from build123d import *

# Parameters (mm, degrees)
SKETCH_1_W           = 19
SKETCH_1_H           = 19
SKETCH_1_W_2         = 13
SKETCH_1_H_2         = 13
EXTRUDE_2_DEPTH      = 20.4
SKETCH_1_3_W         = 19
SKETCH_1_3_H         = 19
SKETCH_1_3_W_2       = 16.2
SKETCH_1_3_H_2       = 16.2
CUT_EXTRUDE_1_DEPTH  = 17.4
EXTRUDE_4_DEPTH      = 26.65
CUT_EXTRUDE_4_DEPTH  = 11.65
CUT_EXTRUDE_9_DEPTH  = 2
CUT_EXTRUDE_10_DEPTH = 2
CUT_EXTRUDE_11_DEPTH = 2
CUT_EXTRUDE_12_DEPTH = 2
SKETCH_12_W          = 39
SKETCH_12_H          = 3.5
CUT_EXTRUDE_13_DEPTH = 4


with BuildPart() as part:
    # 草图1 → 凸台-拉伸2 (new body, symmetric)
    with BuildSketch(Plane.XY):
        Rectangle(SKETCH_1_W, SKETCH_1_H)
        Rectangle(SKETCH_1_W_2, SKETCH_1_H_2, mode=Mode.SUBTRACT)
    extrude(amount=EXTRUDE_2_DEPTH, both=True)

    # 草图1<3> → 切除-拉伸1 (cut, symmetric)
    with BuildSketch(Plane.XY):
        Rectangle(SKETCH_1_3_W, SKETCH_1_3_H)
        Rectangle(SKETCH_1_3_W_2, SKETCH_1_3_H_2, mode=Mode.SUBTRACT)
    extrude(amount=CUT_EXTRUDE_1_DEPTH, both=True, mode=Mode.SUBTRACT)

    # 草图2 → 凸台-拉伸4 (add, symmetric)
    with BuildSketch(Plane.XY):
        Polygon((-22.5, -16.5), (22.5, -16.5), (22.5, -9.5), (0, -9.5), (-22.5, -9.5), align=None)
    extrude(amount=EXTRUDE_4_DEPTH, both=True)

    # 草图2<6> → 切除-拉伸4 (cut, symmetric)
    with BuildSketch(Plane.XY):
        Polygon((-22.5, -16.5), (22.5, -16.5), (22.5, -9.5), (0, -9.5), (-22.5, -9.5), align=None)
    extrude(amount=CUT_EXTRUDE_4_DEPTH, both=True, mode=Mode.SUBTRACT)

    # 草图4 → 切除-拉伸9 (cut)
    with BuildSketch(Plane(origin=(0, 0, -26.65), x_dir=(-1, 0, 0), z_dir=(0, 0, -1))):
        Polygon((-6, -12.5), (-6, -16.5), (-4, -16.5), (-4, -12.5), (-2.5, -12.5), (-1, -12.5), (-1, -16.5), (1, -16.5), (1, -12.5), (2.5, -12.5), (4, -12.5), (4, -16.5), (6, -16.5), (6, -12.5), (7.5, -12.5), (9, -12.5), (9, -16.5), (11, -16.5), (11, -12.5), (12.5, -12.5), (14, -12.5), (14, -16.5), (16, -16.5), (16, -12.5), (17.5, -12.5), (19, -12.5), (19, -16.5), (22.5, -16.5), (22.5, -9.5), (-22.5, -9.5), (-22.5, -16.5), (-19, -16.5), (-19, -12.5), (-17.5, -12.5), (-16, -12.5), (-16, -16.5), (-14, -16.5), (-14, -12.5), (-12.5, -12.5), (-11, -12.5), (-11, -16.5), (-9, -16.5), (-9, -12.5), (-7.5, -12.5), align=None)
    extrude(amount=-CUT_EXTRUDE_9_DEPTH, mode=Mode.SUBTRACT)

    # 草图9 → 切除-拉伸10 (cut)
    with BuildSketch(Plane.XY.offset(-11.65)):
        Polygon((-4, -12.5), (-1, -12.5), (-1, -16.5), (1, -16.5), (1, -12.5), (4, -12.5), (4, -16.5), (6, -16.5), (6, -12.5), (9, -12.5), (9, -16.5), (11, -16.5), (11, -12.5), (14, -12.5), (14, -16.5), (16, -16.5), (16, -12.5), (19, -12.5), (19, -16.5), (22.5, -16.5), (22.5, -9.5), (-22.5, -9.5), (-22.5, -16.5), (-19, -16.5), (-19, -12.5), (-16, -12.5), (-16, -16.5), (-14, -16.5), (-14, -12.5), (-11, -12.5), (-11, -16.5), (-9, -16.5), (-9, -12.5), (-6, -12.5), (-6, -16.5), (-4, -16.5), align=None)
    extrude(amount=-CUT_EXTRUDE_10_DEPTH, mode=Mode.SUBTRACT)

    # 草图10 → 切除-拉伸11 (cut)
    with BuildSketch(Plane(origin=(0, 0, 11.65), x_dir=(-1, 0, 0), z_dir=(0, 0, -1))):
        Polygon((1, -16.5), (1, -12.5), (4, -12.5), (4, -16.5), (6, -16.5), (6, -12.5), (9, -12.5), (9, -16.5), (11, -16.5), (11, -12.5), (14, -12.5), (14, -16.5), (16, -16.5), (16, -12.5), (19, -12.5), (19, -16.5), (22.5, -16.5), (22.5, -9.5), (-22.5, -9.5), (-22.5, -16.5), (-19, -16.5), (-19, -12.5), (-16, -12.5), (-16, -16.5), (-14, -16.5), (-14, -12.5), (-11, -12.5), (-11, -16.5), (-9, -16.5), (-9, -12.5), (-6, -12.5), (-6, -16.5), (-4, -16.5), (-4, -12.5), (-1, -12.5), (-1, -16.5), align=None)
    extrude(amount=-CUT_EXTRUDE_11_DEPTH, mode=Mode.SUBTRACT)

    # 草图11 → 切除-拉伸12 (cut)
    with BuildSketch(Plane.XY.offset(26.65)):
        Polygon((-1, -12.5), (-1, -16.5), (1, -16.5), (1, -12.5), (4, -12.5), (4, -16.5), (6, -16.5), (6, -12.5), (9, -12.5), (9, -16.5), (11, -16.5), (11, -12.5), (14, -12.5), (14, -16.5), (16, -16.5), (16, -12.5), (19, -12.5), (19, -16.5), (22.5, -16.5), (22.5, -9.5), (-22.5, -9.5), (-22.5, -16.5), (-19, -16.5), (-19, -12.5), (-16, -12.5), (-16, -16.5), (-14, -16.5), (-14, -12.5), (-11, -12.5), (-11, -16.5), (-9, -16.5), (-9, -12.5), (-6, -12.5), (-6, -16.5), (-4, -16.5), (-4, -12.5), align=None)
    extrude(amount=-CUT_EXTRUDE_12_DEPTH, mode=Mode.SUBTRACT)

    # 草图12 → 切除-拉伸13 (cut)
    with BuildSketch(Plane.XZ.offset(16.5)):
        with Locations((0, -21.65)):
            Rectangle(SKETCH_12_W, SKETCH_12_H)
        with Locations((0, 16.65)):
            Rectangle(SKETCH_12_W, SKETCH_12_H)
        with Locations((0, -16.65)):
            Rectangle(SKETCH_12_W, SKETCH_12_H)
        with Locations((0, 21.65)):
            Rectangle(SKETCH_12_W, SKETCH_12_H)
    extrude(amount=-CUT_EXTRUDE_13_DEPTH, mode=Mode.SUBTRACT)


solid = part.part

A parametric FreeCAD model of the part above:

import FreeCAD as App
import Part
import Sketcher
Q = App.Units.Quantity

doc = App.newDocument("Part")
params = doc.addObject("Spreadsheet::Sheet", "Params")
for row, (alias, value) in enumerate([
    ("sketch1_width", "19 mm"),
    ("sketch1_width2", "13 mm"),
    ("pad1_length", "40.8 mm"),
    ("sketch2_width", "19 mm"),
    ("sketch2_width2", "16.2 mm"),
    ("pocket1_length", "34.8 mm"),
    ("sketch3_width", "45 mm"),
    ("sketch3_height", "7 mm"),
    ("pad2_length", "53.3 mm"),
    ("sketch4_width", "45 mm"),
    ("sketch4_height", "7 mm"),
    ("pocket2_length", "23.3 mm"),
    ("sketch5_width", "2 mm"),
    ("sketch5_width2", "3 mm"),
    ("sketch5_width3", "45 mm"),
    ("sketch5_height", "4 mm"),
    ("sketch5_height2", "7 mm"),
    ("pocket3_length", "2 mm"),
    ("sketch6_width", "3 mm"),
    ("sketch6_width2", "2 mm"),
    ("sketch6_width3", "45 mm"),
    ("sketch6_height", "4 mm"),
    ("sketch6_height2", "7 mm"),
    ("pocket4_length", "2 mm"),
    ("sketch7_width", "3 mm"),
    ("sketch7_width2", "2 mm"),
    ("sketch7_width3", "45 mm"),
    ("sketch7_height", "4 mm"),
    ("sketch7_height2", "7 mm"),
    ("pocket5_length", "2 mm"),
    ("sketch8_width", "2 mm"),
    ("sketch8_width2", "3 mm"),
    ("sketch8_width3", "45 mm"),
    ("sketch8_height", "4 mm"),
    ("sketch8_height2", "7 mm"),
    ("pocket6_length", "2 mm"),
    ("sketch9_width", "39 mm"),
    ("sketch9_height", "3.5 mm"),
    ("pocket7_length", "4 mm"),
], start=1):
    params.set(f"A{row}", alias)
    params.set(f"B{row}", "=" + value)
    params.setAlias(f"B{row}", alias)

body = doc.addObject("PartDesign::Body", "Body")

# Sketch on XY plane
sketch1 = body.newObject("Sketcher::SketchObject", "Sketch")
sketch1.AttachmentSupport = (doc.getObject("XY_Plane"), [""])
sketch1.MapMode = "FlatFace"
sketch1.addGeometry([
    Part.LineSegment(App.Vector(-9.5, 9.5, 0), App.Vector(-9.5, -9.5, 0)),  # 0
    Part.LineSegment(App.Vector(-9.5, -9.5, 0), App.Vector(9.5, -9.5, 0)),  # 1
    Part.LineSegment(App.Vector(9.5, -9.5, 0), App.Vector(9.5, 9.5, 0)),  # 2
    Part.LineSegment(App.Vector(9.5, 9.5, 0), App.Vector(-9.5, 9.5, 0)),  # 3
    Part.LineSegment(App.Vector(6.5, -6.5, 0), App.Vector(-6.5, -6.5, 0)),  # 4
    Part.LineSegment(App.Vector(-6.5, -6.5, 0), App.Vector(-6.5, 6.5, 0)),  # 5
    Part.LineSegment(App.Vector(-6.5, 6.5, 0), App.Vector(6.5, 6.5, 0)),  # 6
    Part.LineSegment(App.Vector(6.5, 6.5, 0), App.Vector(6.5, -6.5, 0)),  # 7
], False)
sketch1.addConstraint([
    Sketcher.Constraint("Coincident", 0, 2, 1, 1),
    Sketcher.Constraint("Coincident", 1, 2, 2, 1),
    Sketcher.Constraint("Coincident", 2, 2, 3, 1),
    Sketcher.Constraint("Coincident", 3, 2, 0, 1),
    Sketcher.Constraint("Coincident", 4, 2, 5, 1),
    Sketcher.Constraint("Coincident", 5, 2, 6, 1),
    Sketcher.Constraint("Coincident", 6, 2, 7, 1),
    Sketcher.Constraint("Coincident", 7, 2, 4, 1),
    Sketcher.Constraint("Vertical", 0),
    Sketcher.Constraint("Horizontal", 1),
    Sketcher.Constraint("Vertical", 2),
    Sketcher.Constraint("Horizontal", 3),
    Sketcher.Constraint("Horizontal", 4),
    Sketcher.Constraint("Vertical", 5),
    Sketcher.Constraint("Horizontal", 6),
    Sketcher.Constraint("Vertical", 7),
    Sketcher.Constraint("Symmetric", 0, 2, 2, 2, -1, 1),
    Sketcher.Constraint("Symmetric", 4, 2, 6, 2, -1, 1),
    Sketcher.Constraint("Equal", 3, 0),
    Sketcher.Constraint("Equal", 6, 5),
    Sketcher.Constraint("DistanceX", 1, 1, 1, 2, Q("19 mm")),
    Sketcher.Constraint("DistanceX", 4, 2, 4, 1, Q("13 mm")),
])
sketch1.setExpression("Constraints[20]", "Params.sketch1_width")
sketch1.setExpression("Constraints[21]", "Params.sketch1_width2")
pad1 = body.newObject("PartDesign::Pad", "Pad")
pad1.Profile = sketch1
pad1.setExpression("Length", "Params.pad1_length")
pad1.Midplane = True

# Sketch on XY plane
sketch2 = body.newObject("Sketcher::SketchObject", "Sketch001")
sketch2.AttachmentSupport = (doc.getObject("XY_Plane"), [""])
sketch2.MapMode = "FlatFace"
sketch2.addGeometry([
    Part.LineSegment(App.Vector(-9.5, 9.5, 0), App.Vector(-9.5, -9.5, 0)),  # 0
    Part.LineSegment(App.Vector(-9.5, -9.5, 0), App.Vector(9.5, -9.5, 0)),  # 1
    Part.LineSegment(App.Vector(9.5, -9.5, 0), App.Vector(9.5, 9.5, 0)),  # 2
    Part.LineSegment(App.Vector(9.5, 9.5, 0), App.Vector(-9.5, 9.5, 0)),  # 3
    Part.LineSegment(App.Vector(8.1, -8.1, 0), App.Vector(-8.1, -8.1, 0)),  # 4
    Part.LineSegment(App.Vector(-8.1, -8.1, 0), App.Vector(-8.1, 8.1, 0)),  # 5
    Part.LineSegment(App.Vector(-8.1, 8.1, 0), App.Vector(8.1, 8.1, 0)),  # 6
    Part.LineSegment(App.Vector(8.1, 8.1, 0), App.Vector(8.1, -8.1, 0)),  # 7
], False)
sketch2.addConstraint([
    Sketcher.Constraint("Coincident", 0, 2, 1, 1),
    Sketcher.Constraint("Coincident", 1, 2, 2, 1),
    Sketcher.Constraint("Coincident", 2, 2, 3, 1),
    Sketcher.Constraint("Coincident", 3, 2, 0, 1),
    Sketcher.Constraint("Coincident", 4, 2, 5, 1),
    Sketcher.Constraint("Coincident", 5, 2, 6, 1),
    Sketcher.Constraint("Coincident", 6, 2, 7, 1),
    Sketcher.Constraint("Coincident", 7, 2, 4, 1),
    Sketcher.Constraint("Vertical", 0),
    Sketcher.Constraint("Horizontal", 1),
    Sketcher.Constraint("Vertical", 2),
    Sketcher.Constraint("Horizontal", 3),
    Sketcher.Constraint("Horizontal", 4),
    Sketcher.Constraint("Vertical", 5),
    Sketcher.Constraint("Horizontal", 6),
    Sketcher.Constraint("Vertical", 7),
    Sketcher.Constraint("Symmetric", 0, 2, 2, 2, -1, 1),
    Sketcher.Constraint("Symmetric", 4, 2, 6, 2, -1, 1),
    Sketcher.Constraint("Equal", 3, 0),
    Sketcher.Constraint("Equal", 6, 5),
    Sketcher.Constraint("DistanceX", 1, 1, 1, 2, Q("19 mm")),
    Sketcher.Constraint("DistanceX", 4, 2, 4, 1, Q("16.2 mm")),
])
sketch2.setExpression("Constraints[20]", "Params.sketch2_width")
sketch2.setExpression("Constraints[21]", "Params.sketch2_width2")
pocket1 = body.newObject("PartDesign::Pocket", "Pocket")
pocket1.Profile = sketch2
pocket1.setExpression("Length", "Params.pocket1_length")
pocket1.Midplane = True

# Sketch on XY plane
sketch3 = body.newObject("Sketcher::SketchObject", "Sketch002")
sketch3.AttachmentSupport = (doc.getObject("XY_Plane"), [""])
sketch3.MapMode = "FlatFace"
sketch3.addGeometry([
    Part.LineSegment(App.Vector(-22.5, -16.5, 0), App.Vector(22.5, -16.5, 0)),
    Part.LineSegment(App.Vector(22.5, -16.5, 0), App.Vector(22.5, -9.5, 0)),
    Part.LineSegment(App.Vector(22.5, -9.5, 0), App.Vector(-22.5, -9.5, 0)),
    Part.LineSegment(App.Vector(-22.5, -9.5, 0), App.Vector(-22.5, -16.5, 0)),
], False)
sketch3.addConstraint([
    Sketcher.Constraint("Coincident", 0, 2, 1, 1),
    Sketcher.Constraint("Coincident", 1, 2, 2, 1),
    Sketcher.Constraint("Coincident", 2, 2, 3, 1),
    Sketcher.Constraint("Coincident", 3, 2, 0, 1),
    Sketcher.Constraint("Horizontal", 0),
    Sketcher.Constraint("Vertical", 1),
    Sketcher.Constraint("Horizontal", 2),
    Sketcher.Constraint("Vertical", 3),
    Sketcher.Constraint("DistanceX", 0, 1, 0, 2, Q("45 mm")),
    Sketcher.Constraint("DistanceY", 1, 1, 1, 2, Q("7 mm")),
    Sketcher.Constraint("DistanceX", -1, 1, 0, 2, Q("22.5 mm")),
    Sketcher.Constraint("DistanceY", 0, 2, -1, 1, Q("16.5 mm")),
])
sketch3.setExpression("Constraints[8]", "Params.sketch3_width")
sketch3.setExpression("Constraints[9]", "Params.sketch3_height")
pad2 = body.newObject("PartDesign::Pad", "Pad001")
pad2.Profile = sketch3
pad2.setExpression("Length", "Params.pad2_length")
pad2.Midplane = True

# Sketch on XY plane
sketch4 = body.newObject("Sketcher::SketchObject", "Sketch003")
sketch4.AttachmentSupport = (doc.getObject("XY_Plane"), [""])
sketch4.MapMode = "FlatFace"
sketch4.addGeometry([
    Part.LineSegment(App.Vector(-22.5, -16.5, 0), App.Vector(22.5, -16.5, 0)),
    Part.LineSegment(App.Vector(22.5, -16.5, 0), App.Vector(22.5, -9.5, 0)),
    Part.LineSegment(App.Vector(22.5, -9.5, 0), App.Vector(-22.5, -9.5, 0)),
    Part.LineSegment(App.Vector(-22.5, -9.5, 0), App.Vector(-22.5, -16.5, 0)),
], False)
sketch4.addConstraint([
    Sketcher.Constraint("Coincident", 0, 2, 1, 1),
    Sketcher.Constraint("Coincident", 1, 2, 2, 1),
    Sketcher.Constraint("Coincident", 2, 2, 3, 1),
    Sketcher.Constraint("Coincident", 3, 2, 0, 1),
    Sketcher.Constraint("Horizontal", 0),
    Sketcher.Constraint("Vertical", 1),
    Sketcher.Constraint("Horizontal", 2),
    Sketcher.Constraint("Vertical", 3),
    Sketcher.Constraint("DistanceX", 0, 1, 0, 2, Q("45 mm")),
    Sketcher.Constraint("DistanceY", 1, 1, 1, 2, Q("7 mm")),
    Sketcher.Constraint("DistanceX", -1, 1, 0, 2, Q("22.5 mm")),
    Sketcher.Constraint("DistanceY", 0, 2, -1, 1, Q("16.5 mm")),
])
sketch4.setExpression("Constraints[8]", "Params.sketch4_width")
sketch4.setExpression("Constraints[9]", "Params.sketch4_height")
pocket2 = body.newObject("PartDesign::Pocket", "Pocket001")
pocket2.Profile = sketch4
pocket2.setExpression("Length", "Params.pocket2_length")
pocket2.Midplane = True

# Sketch on XY plane
sketch5 = body.newObject("Sketcher::SketchObject", "Sketch004")
sketch5.AttachmentSupport = (doc.getObject("XY_Plane"), [""])
sketch5.MapMode = "FlatFace"
sketch5.AttachmentOffset = App.Placement(App.Vector(0, 0, -26.65), App.Rotation())
sketch5.addGeometry([
    Part.LineSegment(App.Vector(6, -12.5, 0), App.Vector(6, -16.5, 0)),  # 0
    Part.LineSegment(App.Vector(6, -16.5, 0), App.Vector(4, -16.5, 0)),  # 1
    Part.LineSegment(App.Vector(4, -16.5, 0), App.Vector(4, -12.5, 0)),  # 2
    Part.LineSegment(App.Vector(4, -12.5, 0), App.Vector(1, -12.5, 0)),  # 3
    Part.LineSegment(App.Vector(1, -12.5, 0), App.Vector(1, -16.5, 0)),  # 4
    Part.LineSegment(App.Vector(1, -16.5, 0), App.Vector(-1, -16.5, 0)),  # 5
    Part.LineSegment(App.Vector(-1, -16.5, 0), App.Vector(-1, -12.5, 0)),  # 6
    Part.LineSegment(App.Vector(-1, -12.5, 0), App.Vector(-4, -12.5, 0)),  # 7
    Part.LineSegment(App.Vector(-4, -12.5, 0), App.Vector(-4, -16.5, 0)),  # 8
    Part.LineSegment(App.Vector(-4, -16.5, 0), App.Vector(-6, -16.5, 0)),  # 9
    Part.LineSegment(App.Vector(-6, -16.5, 0), App.Vector(-6, -12.5, 0)),  # 10
    Part.LineSegment(App.Vector(-6, -12.5, 0), App.Vector(-9, -12.5, 0)),  # 11
    Part.LineSegment(App.Vector(-9, -12.5, 0), App.Vector(-9, -16.5, 0)),  # 12
    Part.LineSegment(App.Vector(-9, -16.5, 0), App.Vector(-11, -16.5, 0)),  # 13
    Part.LineSegment(App.Vector(-11, -16.5, 0), App.Vector(-11, -12.5, 0)),  # 14
    Part.LineSegment(App.Vector(-11, -12.5, 0), App.Vector(-14, -12.5, 0)),  # 15
    Part.LineSegment(App.Vector(-14, -12.5, 0), App.Vector(-14, -16.5, 0)),  # 16
    Part.LineSegment(App.Vector(-14, -16.5, 0), App.Vector(-16, -16.5, 0)),  # 17
    Part.LineSegment(App.Vector(-16, -16.5, 0), App.Vector(-16, -12.5, 0)),  # 18
    Part.LineSegment(App.Vector(-16, -12.5, 0), App.Vector(-19, -12.5, 0)),  # 19
    Part.LineSegment(App.Vector(-19, -12.5, 0), App.Vector(-19, -16.5, 0)),  # 20
    Part.LineSegment(App.Vector(-19, -16.5, 0), App.Vector(-22.5, -16.5, 0)),  # 21
    Part.LineSegment(App.Vector(-22.5, -16.5, 0), App.Vector(-22.5, -9.5, 0)),  # 22
    Part.LineSegment(App.Vector(-22.5, -9.5, 0), App.Vector(22.5, -9.5, 0)),  # 23
    Part.LineSegment(App.Vector(22.5, -9.5, 0), App.Vector(22.5, -16.5, 0)),  # 24
    Part.LineSegment(App.Vector(22.5, -16.5, 0), App.Vector(19, -16.5, 0)),  # 25
    Part.LineSegment(App.Vector(19, -16.5, 0), App.Vector(19, -12.5, 0)),  # 26
    Part.LineSegment(App.Vector(19, -12.5, 0), App.Vector(16, -12.5, 0)),  # 27
    Part.LineSegment(App.Vector(16, -12.5, 0), App.Vector(16, -16.5, 0)),  # 28
    Part.LineSegment(App.Vector(16, -16.5, 0), App.Vector(14, -16.5, 0)),  # 29
    Part.LineSegment(App.Vector(14, -16.5, 0), App.Vector(14, -12.5, 0)),  # 30
    Part.LineSegment(App.Vector(14, -12.5, 0), App.Vector(11, -12.5, 0)),  # 31
    Part.LineSegment(App.Vector(11, -12.5, 0), App.Vector(11, -16.5, 0)),  # 32
    Part.LineSegment(App.Vector(11, -16.5, 0), App.Vector(9, -16.5, 0)),  # 33
    Part.LineSegment(App.Vector(9, -16.5, 0), App.Vector(9, -12.5, 0)),  # 34
    Part.LineSegment(App.Vector(9, -12.5, 0), App.Vector(6, -12.5, 0)),  # 35
], False)
sketch5.addConstraint([
    Sketcher.Constraint("Coincident", 0, 2, 1, 1),
    Sketcher.Constraint("Coincident", 1, 2, 2, 1),
    Sketcher.Constraint("Coincident", 2, 2, 3, 1),
    Sketcher.Constraint("Coincident", 3, 2, 4, 1),
    Sketcher.Constraint("Coincident", 4, 2, 5, 1),
    Sketcher.Constraint("Coincident", 5, 2, 6, 1),
    Sketcher.Constraint("Coincident", 6, 2, 7, 1),
    Sketcher.Constraint("Coincident", 7, 2, 8, 1),
    Sketcher.Constraint("Coincident", 8, 2, 9, 1),
    Sketcher.Constraint("Coincident", 9, 2, 10, 1),
    Sketcher.Constraint("Coincident", 10, 2, 11, 1),
    Sketcher.Constraint("Coincident", 11, 2, 12, 1),
    Sketcher.Constraint("Coincident", 12, 2, 13, 1),
    Sketcher.Constraint("Coincident", 13, 2, 14, 1),
    Sketcher.Constraint("Coincident", 14, 2, 15, 1),
    Sketcher.Constraint("Coincident", 15, 2, 16, 1),
    Sketcher.Constraint("Coincident", 16, 2, 17, 1),
    Sketcher.Constraint("Coincident", 17, 2, 18, 1),
    Sketcher.Constraint("Coincident", 18, 2, 19, 1),
    Sketcher.Constraint("Coincident", 19, 2, 20, 1),
    Sketcher.Constraint("Coincident", 20, 2, 21, 1),
    Sketcher.Constraint("Coincident", 21, 2, 22, 1),
    Sketcher.Constraint("Coincident", 22, 2, 23, 1),
    Sketcher.Constraint("Coincident", 23, 2, 24, 1),
    Sketcher.Constraint("Coincident", 24, 2, 25, 1),
    Sketcher.Constraint("Coincident", 25, 2, 26, 1),
    Sketcher.Constraint("Coincident", 26, 2, 27, 1),
    Sketcher.Constraint("Coincident", 27, 2, 28, 1),
    Sketcher.Constraint("Coincident", 28, 2, 29, 1),
    Sketcher.Constraint("Coincident", 29, 2, 30, 1),
    Sketcher.Constraint("Coincident", 30, 2, 31, 1),
    Sketcher.Constraint("Coincident", 31, 2, 32, 1),
    Sketcher.Constraint("Coincident", 32, 2, 33, 1),
    Sketcher.Constraint("Coincident", 33, 2, 34, 1),
    Sketcher.Constraint("Coincident", 34, 2, 35, 1),
    Sketcher.Constraint("Coincident", 35, 2, 0, 1),
    Sketcher.Constraint("Vertical", 0),
    Sketcher.Constraint("Horizontal", 1),
    Sketcher.Constraint("Vertical", 2),
    Sketcher.Constraint("Horizontal", 3),
    Sketcher.Constraint("Vertical", 4),
    Sketcher.Constraint("Horizontal", 5),
    Sketcher.Constraint("Vertical", 6),
    Sketcher.Constraint("Horizontal", 7),
    Sketcher.Constraint("Vertical", 8),
    Sketcher.Constraint("Horizontal", 9),
    Sketcher.Constraint("Vertical", 10),
    Sketcher.Constraint("Horizontal", 11),
    Sketcher.Constraint("Vertical", 12),
    Sketcher.Constraint("Horizontal", 13),
    Sketcher.Constraint("Vertical", 14),
    Sketcher.Constraint("Horizontal", 15),
    Sketcher.Constraint("Vertical", 16),
    Sketcher.Constraint("Horizontal", 17),
    Sketcher.Constraint("Vertical", 18),
    Sketcher.Constraint("Horizontal", 19),
    Sketcher.Constraint("Vertical", 20),
    Sketcher.Constraint("Horizontal", 21),
    Sketcher.Constraint("Vertical", 22),
    Sketcher.Constraint("Horizontal", 23),
    Sketcher.Constraint("Vertical", 24),
    Sketcher.Constraint("Horizontal", 25),
    Sketcher.Constraint("Vertical", 26),
    Sketcher.Constraint("Horizontal", 27),
    Sketcher.Constraint("Vertical", 28),
    Sketcher.Constraint("Horizontal", 29),
    Sketcher.Constraint("Vertical", 30),
    Sketcher.Constraint("Horizontal", 31),
    Sketcher.Constraint("Vertical", 32),
    Sketcher.Constraint("Horizontal", 33),
    Sketcher.Constraint("Vertical", 34),
    Sketcher.Constraint("Horizontal", 35),
    Sketcher.Constraint("Symmetric", 3, 2, 6, 2, -2),
    Sketcher.Constraint("Symmetric", 1, 2, 8, 2, -2),
    Sketcher.Constraint("Symmetric", 21, 2, 24, 2, -2),
    Sketcher.Constraint("Symmetric", 19, 2, 26, 2, -2),
    Sketcher.Constraint("Symmetric", 17, 2, 28, 2, -2),
    Sketcher.Constraint("Symmetric", 15, 2, 30, 2, -2),
    Sketcher.Constraint("Symmetric", 13, 2, 32, 2, -2),
    Sketcher.Constraint("Symmetric", 11, 2, 34, 2, -2),
    Sketcher.Constraint("Horizontal", 1, 2, 4, 2),
    Sketcher.Constraint("Horizontal", 7, 2, 10, 2),
    Sketcher.Constraint("Horizontal", 9, 2, 12, 2),
    Sketcher.Constraint("Horizontal", 11, 2, 14, 2),
    Sketcher.Constraint("Horizontal", 13, 2, 16, 2),
    Sketcher.Constraint("Horizontal", 15, 2, 18, 2),
    Sketcher.Constraint("Horizontal", 17, 2, 20, 2),
    Sketcher.Constraint("Equal", 1, 5),
    Sketcher.Constraint("Equal", 5, 9),
    Sketcher.Constraint("Equal", 7, 11),
    Sketcher.Constraint("Equal", 9, 13),
    Sketcher.Constraint("Equal", 11, 15),
    Sketcher.Constraint("Equal", 13, 17),
    Sketcher.Constraint("Equal", 15, 19),
    Sketcher.Constraint("DistanceX", 1, 2, 1, 1, Q("2 mm")),
    Sketcher.Constraint("DistanceX", 3, 2, 3, 1, Q("3 mm")),
    Sketcher.Constraint("DistanceX", 23, 1, 23, 2, Q("45 mm")),
    Sketcher.Constraint("DistanceY", 0, 2, 0, 1, Q("4 mm")),
    Sketcher.Constraint("DistanceY", 22, 1, 22, 2, Q("7 mm")),
    Sketcher.Constraint("DistanceY", 0, 2, -1, 1, Q("16.5 mm")),
])
sketch5.setExpression("Constraints[94]", "Params.sketch5_width")
sketch5.setExpression("Constraints[95]", "Params.sketch5_width2")
sketch5.setExpression("Constraints[96]", "Params.sketch5_width3")
sketch5.setExpression("Constraints[97]", "Params.sketch5_height")
sketch5.setExpression("Constraints[98]", "Params.sketch5_height2")
pocket3 = body.newObject("PartDesign::Pocket", "Pocket002")
pocket3.Profile = sketch5
pocket3.setExpression("Length", "Params.pocket3_length")
pocket3.Reversed = True

# Sketch on XY plane
sketch6 = body.newObject("Sketcher::SketchObject", "Sketch005")
sketch6.AttachmentSupport = (doc.getObject("XY_Plane"), [""])
sketch6.MapMode = "FlatFace"
sketch6.AttachmentOffset = App.Placement(App.Vector(0, 0, -11.65), App.Rotation())
sketch6.addGeometry([
    Part.LineSegment(App.Vector(-4, -12.5, 0), App.Vector(-1, -12.5, 0)),  # 0
    Part.LineSegment(App.Vector(-1, -12.5, 0), App.Vector(-1, -16.5, 0)),  # 1
    Part.LineSegment(App.Vector(-1, -16.5, 0), App.Vector(1, -16.5, 0)),  # 2
    Part.LineSegment(App.Vector(1, -16.5, 0), App.Vector(1, -12.5, 0)),  # 3
    Part.LineSegment(App.Vector(1, -12.5, 0), App.Vector(4, -12.5, 0)),  # 4
    Part.LineSegment(App.Vector(4, -12.5, 0), App.Vector(4, -16.5, 0)),  # 5
    Part.LineSegment(App.Vector(4, -16.5, 0), App.Vector(6, -16.5, 0)),  # 6
    Part.LineSegment(App.Vector(6, -16.5, 0), App.Vector(6, -12.5, 0)),  # 7
    Part.LineSegment(App.Vector(6, -12.5, 0), App.Vector(9, -12.5, 0)),  # 8
    Part.LineSegment(App.Vector(9, -12.5, 0), App.Vector(9, -16.5, 0)),  # 9
    Part.LineSegment(App.Vector(9, -16.5, 0), App.Vector(11, -16.5, 0)),  # 10
    Part.LineSegment(App.Vector(11, -16.5, 0), App.Vector(11, -12.5, 0)),  # 11
    Part.LineSegment(App.Vector(11, -12.5, 0), App.Vector(14, -12.5, 0)),  # 12
    Part.LineSegment(App.Vector(14, -12.5, 0), App.Vector(14, -16.5, 0)),  # 13
    Part.LineSegment(App.Vector(14, -16.5, 0), App.Vector(16, -16.5, 0)),  # 14
    Part.LineSegment(App.Vector(16, -16.5, 0), App.Vector(16, -12.5, 0)),  # 15
    Part.LineSegment(App.Vector(16, -12.5, 0), App.Vector(19, -12.5, 0)),  # 16
    Part.LineSegment(App.Vector(19, -12.5, 0), App.Vector(19, -16.5, 0)),  # 17
    Part.LineSegment(App.Vector(19, -16.5, 0), App.Vector(22.5, -16.5, 0)),  # 18
    Part.LineSegment(App.Vector(22.5, -16.5, 0), App.Vector(22.5, -9.5, 0)),  # 19
    Part.LineSegment(App.Vector(22.5, -9.5, 0), App.Vector(-22.5, -9.5, 0)),  # 20
    Part.LineSegment(App.Vector(-22.5, -9.5, 0), App.Vector(-22.5, -16.5, 0)),  # 21
    Part.LineSegment(App.Vector(-22.5, -16.5, 0), App.Vector(-19, -16.5, 0)),  # 22
    Part.LineSegment(App.Vector(-19, -16.5, 0), App.Vector(-19, -12.5, 0)),  # 23
    Part.LineSegment(App.Vector(-19, -12.5, 0), App.Vector(-16, -12.5, 0)),  # 24
    Part.LineSegment(App.Vector(-16, -12.5, 0), App.Vector(-16, -16.5, 0)),  # 25
    Part.LineSegment(App.Vector(-16, -16.5, 0), App.Vector(-14, -16.5, 0)),  # 26
    Part.LineSegment(App.Vector(-14, -16.5, 0), App.Vector(-14, -12.5, 0)),  # 27
    Part.LineSegment(App.Vector(-14, -12.5, 0), App.Vector(-11, -12.5, 0)),  # 28
    Part.LineSegment(App.Vector(-11, -12.5, 0), App.Vector(-11, -16.5, 0)),  # 29
    Part.LineSegment(App.Vector(-11, -16.5, 0), App.Vector(-9, -16.5, 0)),  # 30
    Part.LineSegment(App.Vector(-9, -16.5, 0), App.Vector(-9, -12.5, 0)),  # 31
    Part.LineSegment(App.Vector(-9, -12.5, 0), App.Vector(-6, -12.5, 0)),  # 32
    Part.LineSegment(App.Vector(-6, -12.5, 0), App.Vector(-6, -16.5, 0)),  # 33
    Part.LineSegment(App.Vector(-6, -16.5, 0), App.Vector(-4, -16.5, 0)),  # 34
    Part.LineSegment(App.Vector(-4, -16.5, 0), App.Vector(-4, -12.5, 0)),  # 35
], False)
sketch6.addConstraint([
    Sketcher.Constraint("Coincident", 0, 2, 1, 1),
    Sketcher.Constraint("Coincident", 1, 2, 2, 1),
    Sketcher.Constraint("Coincident", 2, 2, 3, 1),
    Sketcher.Constraint("Coincident", 3, 2, 4, 1),
    Sketcher.Constraint("Coincident", 4, 2, 5, 1),
    Sketcher.Constraint("Coincident", 5, 2, 6, 1),
    Sketcher.Constraint("Coincident", 6, 2, 7, 1),
    Sketcher.Constraint("Coincident", 7, 2, 8, 1),
    Sketcher.Constraint("Coincident", 8, 2, 9, 1),
    Sketcher.Constraint("Coincident", 9, 2, 10, 1),
    Sketcher.Constraint("Coincident", 10, 2, 11, 1),
    Sketcher.Constraint("Coincident", 11, 2, 12, 1),
    Sketcher.Constraint("Coincident", 12, 2, 13, 1),
    Sketcher.Constraint("Coincident", 13, 2, 14, 1),
    Sketcher.Constraint("Coincident", 14, 2, 15, 1),
    Sketcher.Constraint("Coincident", 15, 2, 16, 1),
    Sketcher.Constraint("Coincident", 16, 2, 17, 1),
    Sketcher.Constraint("Coincident", 17, 2, 18, 1),
    Sketcher.Constraint("Coincident", 18, 2, 19, 1),
    Sketcher.Constraint("Coincident", 19, 2, 20, 1),
    Sketcher.Constraint("Coincident", 20, 2, 21, 1),
    Sketcher.Constraint("Coincident", 21, 2, 22, 1),
    Sketcher.Constraint("Coincident", 22, 2, 23, 1),
    Sketcher.Constraint("Coincident", 23, 2, 24, 1),
    Sketcher.Constraint("Coincident", 24, 2, 25, 1),
    Sketcher.Constraint("Coincident", 25, 2, 26, 1),
    Sketcher.Constraint("Coincident", 26, 2, 27, 1),
    Sketcher.Constraint("Coincident", 27, 2, 28, 1),
    Sketcher.Constraint("Coincident", 28, 2, 29, 1),
    Sketcher.Constraint("Coincident", 29, 2, 30, 1),
    Sketcher.Constraint("Coincident", 30, 2, 31, 1),
    Sketcher.Constraint("Coincident", 31, 2, 32, 1),
    Sketcher.Constraint("Coincident", 32, 2, 33, 1),
    Sketcher.Constraint("Coincident", 33, 2, 34, 1),
    Sketcher.Constraint("Coincident", 34, 2, 35, 1),
    Sketcher.Constraint("Coincident", 35, 2, 0, 1),
    Sketcher.Constraint("Horizontal", 0),
    Sketcher.Constraint("Vertical", 1),
    Sketcher.Constraint("Horizontal", 2),
    Sketcher.Constraint("Vertical", 3),
    Sketcher.Constraint("Horizontal", 4),
    Sketcher.Constraint("Vertical", 5),
    Sketcher.Constraint("Horizontal", 6),
    Sketcher.Constraint("Vertical", 7),
    Sketcher.Constraint("Horizontal", 8),
    Sketcher.Constraint("Vertical", 9),
    Sketcher.Constraint("Horizontal", 10),
    Sketcher.Constraint("Vertical", 11),
    Sketcher.Constraint("Horizontal", 12),
    Sketcher.Constraint("Vertical", 13),
    Sketcher.Constraint("Horizontal", 14),
    Sketcher.Constraint("Vertical", 15),
    Sketcher.Constraint("Horizontal", 16),
    Sketcher.Constraint("Vertical", 17),
    Sketcher.Constraint("Horizontal", 18),
    Sketcher.Constraint("Vertical", 19),
    Sketcher.Constraint("Horizontal", 20),
    Sketcher.Constraint("Vertical", 21),
    Sketcher.Constraint("Horizontal", 22),
    Sketcher.Constraint("Vertical", 23),
    Sketcher.Constraint("Horizontal", 24),
    Sketcher.Constraint("Vertical", 25),
    Sketcher.Constraint("Horizontal", 26),
    Sketcher.Constraint("Vertical", 27),
    Sketcher.Constraint("Horizontal", 28),
    Sketcher.Constraint("Vertical", 29),
    Sketcher.Constraint("Horizontal", 30),
    Sketcher.Constraint("Vertical", 31),
    Sketcher.Constraint("Horizontal", 32),
    Sketcher.Constraint("Vertical", 33),
    Sketcher.Constraint("Horizontal", 34),
    Sketcher.Constraint("Vertical", 35),
    Sketcher.Constraint("Symmetric", 0, 2, 3, 2, -2),
    Sketcher.Constraint("Symmetric", 18, 2, 21, 2, -2),
    Sketcher.Constraint("Symmetric", 16, 2, 23, 2, -2),
    Sketcher.Constraint("Symmetric", 14, 2, 25, 2, -2),
    Sketcher.Constraint("Symmetric", 12, 2, 27, 2, -2),
    Sketcher.Constraint("Symmetric", 10, 2, 29, 2, -2),
    Sketcher.Constraint("Symmetric", 8, 2, 31, 2, -2),
    Sketcher.Constraint("Symmetric", 6, 2, 33, 2, -2),
    Sketcher.Constraint("Horizontal", 2, 2, 5, 2),
    Sketcher.Constraint("Horizontal", 4, 2, 7, 2),
    Sketcher.Constraint("Horizontal", 6, 2, 9, 2),
    Sketcher.Constraint("Horizontal", 8, 2, 11, 2),
    Sketcher.Constraint("Horizontal", 10, 2, 13, 2),
    Sketcher.Constraint("Horizontal", 12, 2, 15, 2),
    Sketcher.Constraint("Horizontal", 14, 2, 17, 2),
    Sketcher.Constraint("Equal", 0, 4),
    Sketcher.Constraint("Equal", 2, 6),
    Sketcher.Constraint("Equal", 4, 8),
    Sketcher.Constraint("Equal", 6, 10),
    Sketcher.Constraint("Equal", 8, 12),
    Sketcher.Constraint("Equal", 10, 14),
    Sketcher.Constraint("Equal", 12, 16),
    Sketcher.Constraint("DistanceX", 0, 1, 0, 2, Q("3 mm")),
    Sketcher.Constraint("DistanceX", 2, 1, 2, 2, Q("2 mm")),
    Sketcher.Constraint("DistanceX", 20, 2, 20, 1, Q("45 mm")),
    Sketcher.Constraint("DistanceY", 1, 2, 1, 1, Q("4 mm")),
    Sketcher.Constraint("DistanceY", 19, 1, 19, 2, Q("7 mm")),
    Sketcher.Constraint("DistanceY", 0, 2, -1, 1, Q("12.5 mm")),
])
sketch6.setExpression("Constraints[94]", "Params.sketch6_width")
sketch6.setExpression("Constraints[95]", "Params.sketch6_width2")
sketch6.setExpression("Constraints[96]", "Params.sketch6_width3")
sketch6.setExpression("Constraints[97]", "Params.sketch6_height")
sketch6.setExpression("Constraints[98]", "Params.sketch6_height2")
pocket4 = body.newObject("PartDesign::Pocket", "Pocket003")
pocket4.Profile = sketch6
pocket4.setExpression("Length", "Params.pocket4_length")

# Sketch on XY plane
sketch7 = body.newObject("Sketcher::SketchObject", "Sketch006")
sketch7.AttachmentSupport = (doc.getObject("XY_Plane"), [""])
sketch7.MapMode = "FlatFace"
sketch7.AttachmentOffset = App.Placement(App.Vector(0, 0, 11.65), App.Rotation())
sketch7.addGeometry([
    Part.LineSegment(App.Vector(-1, -16.5, 0), App.Vector(-1, -12.5, 0)),  # 0
    Part.LineSegment(App.Vector(-1, -12.5, 0), App.Vector(-4, -12.5, 0)),  # 1
    Part.LineSegment(App.Vector(-4, -12.5, 0), App.Vector(-4, -16.5, 0)),  # 2
    Part.LineSegment(App.Vector(-4, -16.5, 0), App.Vector(-6, -16.5, 0)),  # 3
    Part.LineSegment(App.Vector(-6, -16.5, 0), App.Vector(-6, -12.5, 0)),  # 4
    Part.LineSegment(App.Vector(-6, -12.5, 0), App.Vector(-9, -12.5, 0)),  # 5
    Part.LineSegment(App.Vector(-9, -12.5, 0), App.Vector(-9, -16.5, 0)),  # 6
    Part.LineSegment(App.Vector(-9, -16.5, 0), App.Vector(-11, -16.5, 0)),  # 7
    Part.LineSegment(App.Vector(-11, -16.5, 0), App.Vector(-11, -12.5, 0)),  # 8
    Part.LineSegment(App.Vector(-11, -12.5, 0), App.Vector(-14, -12.5, 0)),  # 9
    Part.LineSegment(App.Vector(-14, -12.5, 0), App.Vector(-14, -16.5, 0)),  # 10
    Part.LineSegment(App.Vector(-14, -16.5, 0), App.Vector(-16, -16.5, 0)),  # 11
    Part.LineSegment(App.Vector(-16, -16.5, 0), App.Vector(-16, -12.5, 0)),  # 12
    Part.LineSegment(App.Vector(-16, -12.5, 0), App.Vector(-19, -12.5, 0)),  # 13
    Part.LineSegment(App.Vector(-19, -12.5, 0), App.Vector(-19, -16.5, 0)),  # 14
    Part.LineSegment(App.Vector(-19, -16.5, 0), App.Vector(-22.5, -16.5, 0)),  # 15
    Part.LineSegment(App.Vector(-22.5, -16.5, 0), App.Vector(-22.5, -9.5, 0)),  # 16
    Part.LineSegment(App.Vector(-22.5, -9.5, 0), App.Vector(22.5, -9.5, 0)),  # 17
    Part.LineSegment(App.Vector(22.5, -9.5, 0), App.Vector(22.5, -16.5, 0)),  # 18
    Part.LineSegment(App.Vector(22.5, -16.5, 0), App.Vector(19, -16.5, 0)),  # 19
    Part.LineSegment(App.Vector(19, -16.5, 0), App.Vector(19, -12.5, 0)),  # 20
    Part.LineSegment(App.Vector(19, -12.5, 0), App.Vector(16, -12.5, 0)),  # 21
    Part.LineSegment(App.Vector(16, -12.5, 0), App.Vector(16, -16.5, 0)),  # 22
    Part.LineSegment(App.Vector(16, -16.5, 0), App.Vector(14, -16.5, 0)),  # 23
    Part.LineSegment(App.Vector(14, -16.5, 0), App.Vector(14, -12.5, 0)),  # 24
    Part.LineSegment(App.Vector(14, -12.5, 0), App.Vector(11, -12.5, 0)),  # 25
    Part.LineSegment(App.Vector(11, -12.5, 0), App.Vector(11, -16.5, 0)),  # 26
    Part.LineSegment(App.Vector(11, -16.5, 0), App.Vector(9, -16.5, 0)),  # 27
    Part.LineSegment(App.Vector(9, -16.5, 0), App.Vector(9, -12.5, 0)),  # 28
    Part.LineSegment(App.Vector(9, -12.5, 0), App.Vector(6, -12.5, 0)),  # 29
    Part.LineSegment(App.Vector(6, -12.5, 0), App.Vector(6, -16.5, 0)),  # 30
    Part.LineSegment(App.Vector(6, -16.5, 0), App.Vector(4, -16.5, 0)),  # 31
    Part.LineSegment(App.Vector(4, -16.5, 0), App.Vector(4, -12.5, 0)),  # 32
    Part.LineSegment(App.Vector(4, -12.5, 0), App.Vector(1, -12.5, 0)),  # 33
    Part.LineSegment(App.Vector(1, -12.5, 0), App.Vector(1, -16.5, 0)),  # 34
    Part.LineSegment(App.Vector(1, -16.5, 0), App.Vector(-1, -16.5, 0)),  # 35
], False)
sketch7.addConstraint([
    Sketcher.Constraint("Coincident", 0, 2, 1, 1),
    Sketcher.Constraint("Coincident", 1, 2, 2, 1),
    Sketcher.Constraint("Coincident", 2, 2, 3, 1),
    Sketcher.Constraint("Coincident", 3, 2, 4, 1),
    Sketcher.Constraint("Coincident", 4, 2, 5, 1),
    Sketcher.Constraint("Coincident", 5, 2, 6, 1),
    Sketcher.Constraint("Coincident", 6, 2, 7, 1),
    Sketcher.Constraint("Coincident", 7, 2, 8, 1),
    Sketcher.Constraint("Coincident", 8, 2, 9, 1),
    Sketcher.Constraint("Coincident", 9, 2, 10, 1),
    Sketcher.Constraint("Coincident", 10, 2, 11, 1),
    Sketcher.Constraint("Coincident", 11, 2, 12, 1),
    Sketcher.Constraint("Coincident", 12, 2, 13, 1),
    Sketcher.Constraint("Coincident", 13, 2, 14, 1),
    Sketcher.Constraint("Coincident", 14, 2, 15, 1),
    Sketcher.Constraint("Coincident", 15, 2, 16, 1),
    Sketcher.Constraint("Coincident", 16, 2, 17, 1),
    Sketcher.Constraint("Coincident", 17, 2, 18, 1),
    Sketcher.Constraint("Coincident", 18, 2, 19, 1),
    Sketcher.Constraint("Coincident", 19, 2, 20, 1),
    Sketcher.Constraint("Coincident", 20, 2, 21, 1),
    Sketcher.Constraint("Coincident", 21, 2, 22, 1),
    Sketcher.Constraint("Coincident", 22, 2, 23, 1),
    Sketcher.Constraint("Coincident", 23, 2, 24, 1),
    Sketcher.Constraint("Coincident", 24, 2, 25, 1),
    Sketcher.Constraint("Coincident", 25, 2, 26, 1),
    Sketcher.Constraint("Coincident", 26, 2, 27, 1),
    Sketcher.Constraint("Coincident", 27, 2, 28, 1),
    Sketcher.Constraint("Coincident", 28, 2, 29, 1),
    Sketcher.Constraint("Coincident", 29, 2, 30, 1),
    Sketcher.Constraint("Coincident", 30, 2, 31, 1),
    Sketcher.Constraint("Coincident", 31, 2, 32, 1),
    Sketcher.Constraint("Coincident", 32, 2, 33, 1),
    Sketcher.Constraint("Coincident", 33, 2, 34, 1),
    Sketcher.Constraint("Coincident", 34, 2, 35, 1),
    Sketcher.Constraint("Coincident", 35, 2, 0, 1),
    Sketcher.Constraint("Vertical", 0),
    Sketcher.Constraint("Horizontal", 1),
    Sketcher.Constraint("Vertical", 2),
    Sketcher.Constraint("Horizontal", 3),
    Sketcher.Constraint("Vertical", 4),
    Sketcher.Constraint("Horizontal", 5),
    Sketcher.Constraint("Vertical", 6),
    Sketcher.Constraint("Horizontal", 7),
    Sketcher.Constraint("Vertical", 8),
    Sketcher.Constraint("Horizontal", 9),
    Sketcher.Constraint("Vertical", 10),
    Sketcher.Constraint("Horizontal", 11),
    Sketcher.Constraint("Vertical", 12),
    Sketcher.Constraint("Horizontal", 13),
    Sketcher.Constraint("Vertical", 14),
    Sketcher.Constraint("Horizontal", 15),
    Sketcher.Constraint("Vertical", 16),
    Sketcher.Constraint("Horizontal", 17),
    Sketcher.Constraint("Vertical", 18),
    Sketcher.Constraint("Horizontal", 19),
    Sketcher.Constraint("Vertical", 20),
    Sketcher.Constraint("Horizontal", 21),
    Sketcher.Constraint("Vertical", 22),
    Sketcher.Constraint("Horizontal", 23),
    Sketcher.Constraint("Vertical", 24),
    Sketcher.Constraint("Horizontal", 25),
    Sketcher.Constraint("Vertical", 26),
    Sketcher.Constraint("Horizontal", 27),
    Sketcher.Constraint("Vertical", 28),
    Sketcher.Constraint("Horizontal", 29),
    Sketcher.Constraint("Vertical", 30),
    Sketcher.Constraint("Horizontal", 31),
    Sketcher.Constraint("Vertical", 32),
    Sketcher.Constraint("Horizontal", 33),
    Sketcher.Constraint("Vertical", 34),
    Sketcher.Constraint("Horizontal", 35),
    Sketcher.Constraint("Symmetric", 15, 2, 18, 2, -2),
    Sketcher.Constraint("Symmetric", 13, 2, 20, 2, -2),
    Sketcher.Constraint("Symmetric", 11, 2, 22, 2, -2),
    Sketcher.Constraint("Symmetric", 9, 2, 24, 2, -2),
    Sketcher.Constraint("Symmetric", 7, 2, 26, 2, -2),
    Sketcher.Constraint("Symmetric", 5, 2, 28, 2, -2),
    Sketcher.Constraint("Symmetric", 3, 2, 30, 2, -2),
    Sketcher.Constraint("Symmetric", 1, 2, 32, 2, -2),
    Sketcher.Constraint("Horizontal", 1, 2, 4, 2),
    Sketcher.Constraint("Horizontal", 3, 2, 6, 2),
    Sketcher.Constraint("Horizontal", 5, 2, 8, 2),
    Sketcher.Constraint("Horizontal", 7, 2, 10, 2),
    Sketcher.Constraint("Horizontal", 9, 2, 12, 2),
    Sketcher.Constraint("Horizontal", 11, 2, 14, 2),
    Sketcher.Constraint("Horizontal", 31, 2, 34, 2),
    Sketcher.Constraint("Equal", 1, 5),
    Sketcher.Constraint("Equal", 3, 7),
    Sketcher.Constraint("Equal", 5, 9),
    Sketcher.Constraint("Equal", 7, 11),
    Sketcher.Constraint("Equal", 9, 13),
    Sketcher.Constraint("Equal", 29, 33),
    Sketcher.Constraint("Equal", 31, 35),
    Sketcher.Constraint("DistanceX", 1, 2, 1, 1, Q("3 mm")),
    Sketcher.Constraint("DistanceX", 3, 2, 3, 1, Q("2 mm")),
    Sketcher.Constraint("DistanceX", 17, 1, 17, 2, Q("45 mm")),
    Sketcher.Constraint("DistanceY", 0, 1, 0, 2, Q("4 mm")),
    Sketcher.Constraint("DistanceY", 16, 1, 16, 2, Q("7 mm")),
    Sketcher.Constraint("DistanceY", 0, 2, -1, 1, Q("12.5 mm")),
])
sketch7.setExpression("Constraints[94]", "Params.sketch7_width")
sketch7.setExpression("Constraints[95]", "Params.sketch7_width2")
sketch7.setExpression("Constraints[96]", "Params.sketch7_width3")
sketch7.setExpression("Constraints[97]", "Params.sketch7_height")
sketch7.setExpression("Constraints[98]", "Params.sketch7_height2")
pocket5 = body.newObject("PartDesign::Pocket", "Pocket004")
pocket5.Profile = sketch7
pocket5.setExpression("Length", "Params.pocket5_length")
pocket5.Reversed = True

# Sketch on XY plane
sketch8 = body.newObject("Sketcher::SketchObject", "Sketch007")
sketch8.AttachmentSupport = (doc.getObject("XY_Plane"), [""])
sketch8.MapMode = "FlatFace"
sketch8.AttachmentOffset = App.Placement(App.Vector(0, 0, 26.65), App.Rotation())
sketch8.addGeometry([
    Part.LineSegment(App.Vector(-1, -12.5, 0), App.Vector(-1, -16.5, 0)),  # 0
    Part.LineSegment(App.Vector(-1, -16.5, 0), App.Vector(1, -16.5, 0)),  # 1
    Part.LineSegment(App.Vector(1, -16.5, 0), App.Vector(1, -12.5, 0)),  # 2
    Part.LineSegment(App.Vector(1, -12.5, 0), App.Vector(4, -12.5, 0)),  # 3
    Part.LineSegment(App.Vector(4, -12.5, 0), App.Vector(4, -16.5, 0)),  # 4
    Part.LineSegment(App.Vector(4, -16.5, 0), App.Vector(6, -16.5, 0)),  # 5
    Part.LineSegment(App.Vector(6, -16.5, 0), App.Vector(6, -12.5, 0)),  # 6
    Part.LineSegment(App.Vector(6, -12.5, 0), App.Vector(9, -12.5, 0)),  # 7
    Part.LineSegment(App.Vector(9, -12.5, 0), App.Vector(9, -16.5, 0)),  # 8
    Part.LineSegment(App.Vector(9, -16.5, 0), App.Vector(11, -16.5, 0)),  # 9
    Part.LineSegment(App.Vector(11, -16.5, 0), App.Vector(11, -12.5, 0)),  # 10
    Part.LineSegment(App.Vector(11, -12.5, 0), App.Vector(14, -12.5, 0)),  # 11
    Part.LineSegment(App.Vector(14, -12.5, 0), App.Vector(14, -16.5, 0)),  # 12
    Part.LineSegment(App.Vector(14, -16.5, 0), App.Vector(16, -16.5, 0)),  # 13
    Part.LineSegment(App.Vector(16, -16.5, 0), App.Vector(16, -12.5, 0)),  # 14
    Part.LineSegment(App.Vector(16, -12.5, 0), App.Vector(19, -12.5, 0)),  # 15
    Part.LineSegment(App.Vector(19, -12.5, 0), App.Vector(19, -16.5, 0)),  # 16
    Part.LineSegment(App.Vector(19, -16.5, 0), App.Vector(22.5, -16.5, 0)),  # 17
    Part.LineSegment(App.Vector(22.5, -16.5, 0), App.Vector(22.5, -9.5, 0)),  # 18
    Part.LineSegment(App.Vector(22.5, -9.5, 0), App.Vector(-22.5, -9.5, 0)),  # 19
    Part.LineSegment(App.Vector(-22.5, -9.5, 0), App.Vector(-22.5, -16.5, 0)),  # 20
    Part.LineSegment(App.Vector(-22.5, -16.5, 0), App.Vector(-19, -16.5, 0)),  # 21
    Part.LineSegment(App.Vector(-19, -16.5, 0), App.Vector(-19, -12.5, 0)),  # 22
    Part.LineSegment(App.Vector(-19, -12.5, 0), App.Vector(-16, -12.5, 0)),  # 23
    Part.LineSegment(App.Vector(-16, -12.5, 0), App.Vector(-16, -16.5, 0)),  # 24
    Part.LineSegment(App.Vector(-16, -16.5, 0), App.Vector(-14, -16.5, 0)),  # 25
    Part.LineSegment(App.Vector(-14, -16.5, 0), App.Vector(-14, -12.5, 0)),  # 26
    Part.LineSegment(App.Vector(-14, -12.5, 0), App.Vector(-11, -12.5, 0)),  # 27
    Part.LineSegment(App.Vector(-11, -12.5, 0), App.Vector(-11, -16.5, 0)),  # 28
    Part.LineSegment(App.Vector(-11, -16.5, 0), App.Vector(-9, -16.5, 0)),  # 29
    Part.LineSegment(App.Vector(-9, -16.5, 0), App.Vector(-9, -12.5, 0)),  # 30
    Part.LineSegment(App.Vector(-9, -12.5, 0), App.Vector(-6, -12.5, 0)),  # 31
    Part.LineSegment(App.Vector(-6, -12.5, 0), App.Vector(-6, -16.5, 0)),  # 32
    Part.LineSegment(App.Vector(-6, -16.5, 0), App.Vector(-4, -16.5, 0)),  # 33
    Part.LineSegment(App.Vector(-4, -16.5, 0), App.Vector(-4, -12.5, 0)),  # 34
    Part.LineSegment(App.Vector(-4, -12.5, 0), App.Vector(-1, -12.5, 0)),  # 35
], False)
sketch8.addConstraint([
    Sketcher.Constraint("Coincident", 0, 2, 1, 1),
    Sketcher.Constraint("Coincident", 1, 2, 2, 1),
    Sketcher.Constraint("Coincident", 2, 2, 3, 1),
    Sketcher.Constraint("Coincident", 3, 2, 4, 1),
    Sketcher.Constraint("Coincident", 4, 2, 5, 1),
    Sketcher.Constraint("Coincident", 5, 2, 6, 1),
    Sketcher.Constraint("Coincident", 6, 2, 7, 1),
    Sketcher.Constraint("Coincident", 7, 2, 8, 1),
    Sketcher.Constraint("Coincident", 8, 2, 9, 1),
    Sketcher.Constraint("Coincident", 9, 2, 10, 1),
    Sketcher.Constraint("Coincident", 10, 2, 11, 1),
    Sketcher.Constraint("Coincident", 11, 2, 12, 1),
    Sketcher.Constraint("Coincident", 12, 2, 13, 1),
    Sketcher.Constraint("Coincident", 13, 2, 14, 1),
    Sketcher.Constraint("Coincident", 14, 2, 15, 1),
    Sketcher.Constraint("Coincident", 15, 2, 16, 1),
    Sketcher.Constraint("Coincident", 16, 2, 17, 1),
    Sketcher.Constraint("Coincident", 17, 2, 18, 1),
    Sketcher.Constraint("Coincident", 18, 2, 19, 1),
    Sketcher.Constraint("Coincident", 19, 2, 20, 1),
    Sketcher.Constraint("Coincident", 20, 2, 21, 1),
    Sketcher.Constraint("Coincident", 21, 2, 22, 1),
    Sketcher.Constraint("Coincident", 22, 2, 23, 1),
    Sketcher.Constraint("Coincident", 23, 2, 24, 1),
    Sketcher.Constraint("Coincident", 24, 2, 25, 1),
    Sketcher.Constraint("Coincident", 25, 2, 26, 1),
    Sketcher.Constraint("Coincident", 26, 2, 27, 1),
    Sketcher.Constraint("Coincident", 27, 2, 28, 1),
    Sketcher.Constraint("Coincident", 28, 2, 29, 1),
    Sketcher.Constraint("Coincident", 29, 2, 30, 1),
    Sketcher.Constraint("Coincident", 30, 2, 31, 1),
    Sketcher.Constraint("Coincident", 31, 2, 32, 1),
    Sketcher.Constraint("Coincident", 32, 2, 33, 1),
    Sketcher.Constraint("Coincident", 33, 2, 34, 1),
    Sketcher.Constraint("Coincident", 34, 2, 35, 1),
    Sketcher.Constraint("Coincident", 35, 2, 0, 1),
    Sketcher.Constraint("Vertical", 0),
    Sketcher.Constraint("Horizontal", 1),
    Sketcher.Constraint("Vertical", 2),
    Sketcher.Constraint("Horizontal", 3),
    Sketcher.Constraint("Vertical", 4),
    Sketcher.Constraint("Horizontal", 5),
    Sketcher.Constraint("Vertical", 6),
    Sketcher.Constraint("Horizontal", 7),
    Sketcher.Constraint("Vertical", 8),
    Sketcher.Constraint("Horizontal", 9),
    Sketcher.Constraint("Vertical", 10),
    Sketcher.Constraint("Horizontal", 11),
    Sketcher.Constraint("Vertical", 12),
    Sketcher.Constraint("Horizontal", 13),
    Sketcher.Constraint("Vertical", 14),
    Sketcher.Constraint("Horizontal", 15),
    Sketcher.Constraint("Vertical", 16),
    Sketcher.Constraint("Horizontal", 17),
    Sketcher.Constraint("Vertical", 18),
    Sketcher.Constraint("Horizontal", 19),
    Sketcher.Constraint("Vertical", 20),
    Sketcher.Constraint("Horizontal", 21),
    Sketcher.Constraint("Vertical", 22),
    Sketcher.Constraint("Horizontal", 23),
    Sketcher.Constraint("Vertical", 24),
    Sketcher.Constraint("Horizontal", 25),
    Sketcher.Constraint("Vertical", 26),
    Sketcher.Constraint("Horizontal", 27),
    Sketcher.Constraint("Vertical", 28),
    Sketcher.Constraint("Horizontal", 29),
    Sketcher.Constraint("Vertical", 30),
    Sketcher.Constraint("Horizontal", 31),
    Sketcher.Constraint("Vertical", 32),
    Sketcher.Constraint("Horizontal", 33),
    Sketcher.Constraint("Vertical", 34),
    Sketcher.Constraint("Horizontal", 35),
    Sketcher.Constraint("Symmetric", 17, 2, 20, 2, -2),
    Sketcher.Constraint("Symmetric", 15, 2, 22, 2, -2),
    Sketcher.Constraint("Symmetric", 13, 2, 24, 2, -2),
    Sketcher.Constraint("Symmetric", 11, 2, 26, 2, -2),
    Sketcher.Constraint("Symmetric", 9, 2, 28, 2, -2),
    Sketcher.Constraint("Symmetric", 7, 2, 30, 2, -2),
    Sketcher.Constraint("Symmetric", 5, 2, 32, 2, -2),
    Sketcher.Constraint("Symmetric", 3, 2, 34, 2, -2),
    Sketcher.Constraint("Horizontal", 1, 2, 4, 2),
    Sketcher.Constraint("Horizontal", 3, 2, 6, 2),
    Sketcher.Constraint("Horizontal", 5, 2, 8, 2),
    Sketcher.Constraint("Horizontal", 7, 2, 10, 2),
    Sketcher.Constraint("Horizontal", 9, 2, 12, 2),
    Sketcher.Constraint("Horizontal", 11, 2, 14, 2),
    Sketcher.Constraint("Horizontal", 13, 2, 16, 2),
    Sketcher.Constraint("Equal", 1, 5),
    Sketcher.Constraint("Equal", 3, 7),
    Sketcher.Constraint("Equal", 5, 9),
    Sketcher.Constraint("Equal", 7, 11),
    Sketcher.Constraint("Equal", 9, 13),
    Sketcher.Constraint("Equal", 11, 15),
    Sketcher.Constraint("Equal", 31, 35),
    Sketcher.Constraint("DistanceX", 1, 1, 1, 2, Q("2 mm")),
    Sketcher.Constraint("DistanceX", 3, 1, 3, 2, Q("3 mm")),
    Sketcher.Constraint("DistanceX", 19, 2, 19, 1, Q("45 mm")),
    Sketcher.Constraint("DistanceY", 0, 2, 0, 1, Q("4 mm")),
    Sketcher.Constraint("DistanceY", 18, 1, 18, 2, Q("7 mm")),
    Sketcher.Constraint("DistanceY", 0, 2, -1, 1, Q("16.5 mm")),
])
sketch8.setExpression("Constraints[94]", "Params.sketch8_width")
sketch8.setExpression("Constraints[95]", "Params.sketch8_width2")
sketch8.setExpression("Constraints[96]", "Params.sketch8_width3")
sketch8.setExpression("Constraints[97]", "Params.sketch8_height")
sketch8.setExpression("Constraints[98]", "Params.sketch8_height2")
pocket6 = body.newObject("PartDesign::Pocket", "Pocket005")
pocket6.Profile = sketch8
pocket6.setExpression("Length", "Params.pocket6_length")

# Sketch on XZ plane
sketch9 = body.newObject("Sketcher::SketchObject", "Sketch008")
sketch9.AttachmentSupport = (doc.getObject("XZ_Plane"), [""])
sketch9.MapMode = "FlatFace"
sketch9.AttachmentOffset = App.Placement(App.Vector(0, 0, 16.5), App.Rotation())
sketch9.addGeometry([
    Part.LineSegment(App.Vector(-19.5, -19.9, 0), App.Vector(-19.5, -23.4, 0)),  # 0
    Part.LineSegment(App.Vector(-19.5, -23.4, 0), App.Vector(19.5, -23.4, 0)),  # 1
    Part.LineSegment(App.Vector(19.5, -23.4, 0), App.Vector(19.5, -19.9, 0)),  # 2
    Part.LineSegment(App.Vector(19.5, -19.9, 0), App.Vector(-19.5, -19.9, 0)),  # 3
    Part.LineSegment(App.Vector(-19.5, 18.4, 0), App.Vector(-19.5, 14.9, 0)),  # 4
    Part.LineSegment(App.Vector(-19.5, 14.9, 0), App.Vector(19.5, 14.9, 0)),  # 5
    Part.LineSegment(App.Vector(19.5, 14.9, 0), App.Vector(19.5, 18.4, 0)),  # 6
    Part.LineSegment(App.Vector(19.5, 18.4, 0), App.Vector(-19.5, 18.4, 0)),  # 7
    Part.LineSegment(App.Vector(-19.5, -14.9, 0), App.Vector(-19.5, -18.4, 0)),  # 8
    Part.LineSegment(App.Vector(-19.5, -18.4, 0), App.Vector(19.5, -18.4, 0)),  # 9
    Part.LineSegment(App.Vector(19.5, -18.4, 0), App.Vector(19.5, -14.9, 0)),  # 10
    Part.LineSegment(App.Vector(19.5, -14.9, 0), App.Vector(-19.5, -14.9, 0)),  # 11
    Part.LineSegment(App.Vector(-19.5, 23.4, 0), App.Vector(-19.5, 19.9, 0)),  # 12
    Part.LineSegment(App.Vector(-19.5, 19.9, 0), App.Vector(19.5, 19.9, 0)),  # 13
    Part.LineSegment(App.Vector(19.5, 19.9, 0), App.Vector(19.5, 23.4, 0)),  # 14
    Part.LineSegment(App.Vector(19.5, 23.4, 0), App.Vector(-19.5, 23.4, 0)),  # 15
], False)
sketch9.addConstraint([
    Sketcher.Constraint("Coincident", 0, 2, 1, 1),
    Sketcher.Constraint("Coincident", 1, 2, 2, 1),
    Sketcher.Constraint("Coincident", 2, 2, 3, 1),
    Sketcher.Constraint("Coincident", 3, 2, 0, 1),
    Sketcher.Constraint("Coincident", 4, 2, 5, 1),
    Sketcher.Constraint("Coincident", 5, 2, 6, 1),
    Sketcher.Constraint("Coincident", 6, 2, 7, 1),
    Sketcher.Constraint("Coincident", 7, 2, 4, 1),
    Sketcher.Constraint("Coincident", 8, 2, 9, 1),
    Sketcher.Constraint("Coincident", 9, 2, 10, 1),
    Sketcher.Constraint("Coincident", 10, 2, 11, 1),
    Sketcher.Constraint("Coincident", 11, 2, 8, 1),
    Sketcher.Constraint("Coincident", 12, 2, 13, 1),
    Sketcher.Constraint("Coincident", 13, 2, 14, 1),
    Sketcher.Constraint("Coincident", 14, 2, 15, 1),
    Sketcher.Constraint("Coincident", 15, 2, 12, 1),
    Sketcher.Constraint("Vertical", 0),
    Sketcher.Constraint("Horizontal", 1),
    Sketcher.Constraint("Vertical", 2),
    Sketcher.Constraint("Horizontal", 3),
    Sketcher.Constraint("Vertical", 4),
    Sketcher.Constraint("Horizontal", 5),
    Sketcher.Constraint("Vertical", 6),
    Sketcher.Constraint("Horizontal", 7),
    Sketcher.Constraint("Vertical", 8),
    Sketcher.Constraint("Horizontal", 9),
    Sketcher.Constraint("Vertical", 10),
    Sketcher.Constraint("Horizontal", 11),
    Sketcher.Constraint("Vertical", 12),
    Sketcher.Constraint("Horizontal", 13),
    Sketcher.Constraint("Vertical", 14),
    Sketcher.Constraint("Horizontal", 15),
    Sketcher.Constraint("Symmetric", 6, 2, 8, 2, -1, 1),
    Sketcher.Constraint("Symmetric", 4, 2, 10, 2, -1, 1),
    Sketcher.Constraint("Symmetric", 2, 2, 12, 2, -1, 1),
    Sketcher.Constraint("Symmetric", 0, 2, 14, 2, -1, 1),
    Sketcher.Constraint("Vertical", 3, 2, 4, 2),
    Sketcher.Constraint("Vertical", 2, 2, 5, 2),
    Sketcher.Constraint("Vertical", 7, 2, 8, 2),
    Sketcher.Constraint("Equal", 2, 4),
    Sketcher.Constraint("DistanceX", 1, 1, 1, 2, Q("39 mm")),
    Sketcher.Constraint("DistanceY", 0, 2, 0, 1, Q("3.5 mm")),
    Sketcher.Constraint("DistanceY", 0, 2, 8, 2, Q("5 mm")),
    Sketcher.Constraint("DistanceY", 0, 2, -1, 1, Q("23.4 mm")),
])
sketch9.setExpression("Constraints[40]", "Params.sketch9_width")
sketch9.setExpression("Constraints[41]", "Params.sketch9_height")
pocket7 = body.newObject("PartDesign::Pocket", "Pocket006")
pocket7.Profile = sketch9
pocket7.setExpression("Length", "Params.pocket7_length")

doc.recompute()
